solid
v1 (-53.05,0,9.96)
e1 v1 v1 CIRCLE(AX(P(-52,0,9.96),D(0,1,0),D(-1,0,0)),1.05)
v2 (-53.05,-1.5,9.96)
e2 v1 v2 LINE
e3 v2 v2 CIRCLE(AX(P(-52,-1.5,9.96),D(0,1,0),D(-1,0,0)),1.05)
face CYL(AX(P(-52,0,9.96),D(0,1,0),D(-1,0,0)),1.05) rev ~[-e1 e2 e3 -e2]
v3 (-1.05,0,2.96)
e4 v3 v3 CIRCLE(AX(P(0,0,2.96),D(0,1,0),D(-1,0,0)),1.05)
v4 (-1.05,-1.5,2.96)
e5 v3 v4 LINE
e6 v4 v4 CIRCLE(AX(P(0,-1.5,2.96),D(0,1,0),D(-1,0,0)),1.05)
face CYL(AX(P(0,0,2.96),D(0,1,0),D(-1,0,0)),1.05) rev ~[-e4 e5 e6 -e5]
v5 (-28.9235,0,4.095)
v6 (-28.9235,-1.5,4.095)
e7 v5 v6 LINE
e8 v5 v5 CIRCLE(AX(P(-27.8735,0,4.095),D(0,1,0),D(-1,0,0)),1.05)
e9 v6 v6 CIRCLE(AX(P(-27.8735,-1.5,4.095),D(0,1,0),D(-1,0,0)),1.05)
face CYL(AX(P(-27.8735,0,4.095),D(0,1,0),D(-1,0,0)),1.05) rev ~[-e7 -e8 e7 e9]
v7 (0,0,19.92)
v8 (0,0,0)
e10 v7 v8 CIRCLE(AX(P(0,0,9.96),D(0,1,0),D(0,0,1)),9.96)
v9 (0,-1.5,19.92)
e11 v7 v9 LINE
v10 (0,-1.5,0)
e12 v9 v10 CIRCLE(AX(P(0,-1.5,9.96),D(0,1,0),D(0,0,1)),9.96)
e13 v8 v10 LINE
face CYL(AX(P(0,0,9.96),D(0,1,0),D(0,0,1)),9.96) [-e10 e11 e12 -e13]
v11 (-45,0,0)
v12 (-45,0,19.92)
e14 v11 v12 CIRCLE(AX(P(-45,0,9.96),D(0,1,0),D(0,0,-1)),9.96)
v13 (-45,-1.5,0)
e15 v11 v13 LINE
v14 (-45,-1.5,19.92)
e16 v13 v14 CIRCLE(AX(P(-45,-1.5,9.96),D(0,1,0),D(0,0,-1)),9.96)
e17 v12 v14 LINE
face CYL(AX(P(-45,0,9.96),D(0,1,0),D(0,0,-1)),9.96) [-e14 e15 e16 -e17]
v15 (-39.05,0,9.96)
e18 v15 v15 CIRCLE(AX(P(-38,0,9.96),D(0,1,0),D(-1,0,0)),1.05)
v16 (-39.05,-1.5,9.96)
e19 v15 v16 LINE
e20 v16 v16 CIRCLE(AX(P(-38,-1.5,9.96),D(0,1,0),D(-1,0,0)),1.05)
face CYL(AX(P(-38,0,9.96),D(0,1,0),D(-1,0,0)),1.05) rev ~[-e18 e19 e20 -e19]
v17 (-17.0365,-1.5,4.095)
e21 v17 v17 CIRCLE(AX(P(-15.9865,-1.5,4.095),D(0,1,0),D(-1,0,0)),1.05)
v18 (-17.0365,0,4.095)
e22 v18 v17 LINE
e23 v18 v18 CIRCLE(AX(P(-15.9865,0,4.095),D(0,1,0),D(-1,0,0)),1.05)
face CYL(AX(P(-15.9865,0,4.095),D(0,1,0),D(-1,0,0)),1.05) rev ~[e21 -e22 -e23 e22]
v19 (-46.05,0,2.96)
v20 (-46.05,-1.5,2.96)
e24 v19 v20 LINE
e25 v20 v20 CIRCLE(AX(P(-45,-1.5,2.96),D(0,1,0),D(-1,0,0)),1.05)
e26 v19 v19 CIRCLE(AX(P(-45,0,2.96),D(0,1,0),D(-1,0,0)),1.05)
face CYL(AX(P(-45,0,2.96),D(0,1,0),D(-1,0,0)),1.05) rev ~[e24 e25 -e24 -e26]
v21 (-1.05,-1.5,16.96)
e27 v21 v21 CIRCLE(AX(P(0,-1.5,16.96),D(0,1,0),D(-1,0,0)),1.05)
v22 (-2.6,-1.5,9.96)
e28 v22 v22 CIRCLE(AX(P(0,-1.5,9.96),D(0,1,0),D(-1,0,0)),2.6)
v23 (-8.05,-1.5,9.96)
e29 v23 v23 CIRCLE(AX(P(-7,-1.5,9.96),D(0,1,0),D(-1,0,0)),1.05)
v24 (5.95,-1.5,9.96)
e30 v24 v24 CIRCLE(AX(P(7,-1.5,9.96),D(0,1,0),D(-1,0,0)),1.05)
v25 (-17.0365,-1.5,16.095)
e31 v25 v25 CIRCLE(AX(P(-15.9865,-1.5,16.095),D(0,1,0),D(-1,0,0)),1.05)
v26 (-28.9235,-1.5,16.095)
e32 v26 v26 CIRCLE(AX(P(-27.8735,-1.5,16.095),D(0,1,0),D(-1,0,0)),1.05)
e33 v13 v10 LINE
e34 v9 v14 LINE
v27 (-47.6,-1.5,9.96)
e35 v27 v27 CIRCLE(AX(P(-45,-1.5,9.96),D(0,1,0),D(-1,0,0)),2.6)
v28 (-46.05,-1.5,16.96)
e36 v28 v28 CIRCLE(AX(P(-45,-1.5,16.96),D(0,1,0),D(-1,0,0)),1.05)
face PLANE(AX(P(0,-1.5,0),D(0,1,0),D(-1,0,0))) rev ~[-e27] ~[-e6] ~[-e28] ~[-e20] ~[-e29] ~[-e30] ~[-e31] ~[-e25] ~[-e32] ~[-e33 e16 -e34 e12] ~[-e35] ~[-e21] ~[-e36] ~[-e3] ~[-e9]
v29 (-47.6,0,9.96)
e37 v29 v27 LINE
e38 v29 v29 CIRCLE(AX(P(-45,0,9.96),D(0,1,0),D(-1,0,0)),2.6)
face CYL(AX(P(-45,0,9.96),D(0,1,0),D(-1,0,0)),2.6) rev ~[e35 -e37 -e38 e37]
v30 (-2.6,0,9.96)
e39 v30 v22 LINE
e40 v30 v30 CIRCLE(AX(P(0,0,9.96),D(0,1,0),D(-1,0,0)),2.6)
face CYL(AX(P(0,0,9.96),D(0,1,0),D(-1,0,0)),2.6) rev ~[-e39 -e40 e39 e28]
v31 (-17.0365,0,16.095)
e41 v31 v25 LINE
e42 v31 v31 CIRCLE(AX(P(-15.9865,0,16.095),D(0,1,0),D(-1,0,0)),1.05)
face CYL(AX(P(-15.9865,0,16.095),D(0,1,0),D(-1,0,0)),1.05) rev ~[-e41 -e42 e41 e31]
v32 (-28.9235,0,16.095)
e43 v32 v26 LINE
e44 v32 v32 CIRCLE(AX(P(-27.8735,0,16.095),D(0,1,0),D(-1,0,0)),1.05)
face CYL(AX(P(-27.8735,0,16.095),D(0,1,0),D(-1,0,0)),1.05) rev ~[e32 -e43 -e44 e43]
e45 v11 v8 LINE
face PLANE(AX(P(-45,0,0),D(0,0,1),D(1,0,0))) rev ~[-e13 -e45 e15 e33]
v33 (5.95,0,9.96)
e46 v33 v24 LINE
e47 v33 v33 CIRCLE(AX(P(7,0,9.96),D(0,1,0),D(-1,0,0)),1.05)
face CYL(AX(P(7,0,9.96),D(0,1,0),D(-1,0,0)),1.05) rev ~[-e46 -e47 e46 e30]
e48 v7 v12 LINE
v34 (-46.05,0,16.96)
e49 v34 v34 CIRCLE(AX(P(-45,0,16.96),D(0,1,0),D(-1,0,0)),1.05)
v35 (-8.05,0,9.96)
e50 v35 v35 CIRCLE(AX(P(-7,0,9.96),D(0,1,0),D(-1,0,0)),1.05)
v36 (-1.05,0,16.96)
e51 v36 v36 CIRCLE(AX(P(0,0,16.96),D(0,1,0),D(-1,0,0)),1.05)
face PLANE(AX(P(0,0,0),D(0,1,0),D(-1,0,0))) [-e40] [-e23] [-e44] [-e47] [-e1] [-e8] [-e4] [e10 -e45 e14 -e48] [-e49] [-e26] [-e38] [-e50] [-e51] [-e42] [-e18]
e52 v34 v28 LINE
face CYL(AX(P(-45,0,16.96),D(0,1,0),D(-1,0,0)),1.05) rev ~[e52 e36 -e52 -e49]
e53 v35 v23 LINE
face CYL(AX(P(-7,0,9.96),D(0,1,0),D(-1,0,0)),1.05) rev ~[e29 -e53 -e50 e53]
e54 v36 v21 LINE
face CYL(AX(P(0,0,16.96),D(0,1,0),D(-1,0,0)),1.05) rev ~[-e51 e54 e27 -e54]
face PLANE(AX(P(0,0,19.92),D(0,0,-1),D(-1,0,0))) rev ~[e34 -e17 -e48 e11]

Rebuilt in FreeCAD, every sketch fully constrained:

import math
import FreeCAD as App
import Part
import Sketcher

V = App.Vector
Q = App.Units.Quantity

doc = App.newDocument("Part")
body = doc.addObject("PartDesign::Body", "Body")

sketch1 = doc.addObject("Sketcher::SketchObject", "Sketch")
body.addObject(sketch1)
sketch1.AttachmentSupport = (doc.XZ_Plane, [""])
sketch1.MapMode = "FlatFace"
sketch1.addGeometry([
    Part.LineSegment(V(0, 0, 0), V(-45, 0, 0)),
    Part.ArcOfCircle(Part.Circle(V(-45, 10, 0), V(0, 0, 1), 10), math.radians(90), math.radians(270)),
    Part.LineSegment(V(-45, 19.9, 0), V(0, 19.9, 0)),
    Part.ArcOfCircle(Part.Circle(V(0, 10, 0), V(0, 0, 1), 10), math.radians(-90), math.radians(90)),
    Part.Circle(V(0, 3, 0), V(0, 0, 1), 1.1),
    Part.Circle(V(-16, 4.1, 0), V(0, 0, 1), 1.1),
    Part.Circle(V(7, 10, 0), V(0, 0, 1), 1.1),
    Part.Circle(V(0, 10, 0), V(0, 0, 1), 2.6),
    Part.Circle(V(-7, 10, 0), V(0, 0, 1), 1.1),
    Part.Circle(V(-27.9, 4.1, 0), V(0, 0, 1), 1.1),
    Part.Circle(V(-45, 3, 0), V(0, 0, 1), 1.1),
    Part.Circle(V(-38, 10, 0), V(0, 0, 1), 1.1),
    Part.Circle(V(-45, 10, 0), V(0, 0, 1), 2.6),
    Part.Circle(V(-52, 10, 0), V(0, 0, 1), 1.1),
    Part.Circle(V(0, 17, 0), V(0, 0, 1), 1.1),
    Part.Circle(V(-16, 16.1, 0), V(0, 0, 1), 1.1),
    Part.Circle(V(-27.9, 16.1, 0), V(0, 0, 1), 1.1),
    Part.Circle(V(-45, 17, 0), V(0, 0, 1), 1.1),
], False)
sketch1.addConstraint([
    Sketcher.Constraint("Tangent", 0, 2, 1, 2),
    Sketcher.Constraint("Tangent", 1, 1, 2, 1),
    Sketcher.Constraint("Tangent", 2, 2, 3, 2),
    Sketcher.Constraint("Tangent", 3, 1, 0, 1),
    Sketcher.Constraint("Horizontal", 0),
    Sketcher.Constraint("Horizontal", 2),
    Sketcher.Constraint("Coincident", 3, 1, -1, 1),
    Sketcher.Constraint("Coincident", 7, 3, 3, 3),
    Sketcher.Constraint("Coincident", 12, 3, 1, 3),
    Sketcher.Constraint("Equal", 4, 5),
    Sketcher.Constraint("Equal", 5, 6),
    Sketcher.Constraint("Equal", 6, 8),
    Sketcher.Constraint("Equal", 8, 9),
    Sketcher.Constraint("Equal", 9, 10),
    Sketcher.Constraint("Equal", 10, 11),
    Sketcher.Constraint("Equal", 7, 12),
    Sketcher.Constraint("Equal", 11, 13),
    Sketcher.Constraint("Equal", 13, 14),
    Sketcher.Constraint("Equal", 14, 15),
    Sketcher.Constraint("Equal", 15, 16),
    Sketcher.Constraint("Equal", 16, 17),
    Sketcher.Constraint("Symmetric", 6, 3, 8, 3, -2),
    Sketcher.Constraint("PointOnObject", 4, 3, -2),
    Sketcher.Constraint("PointOnObject", 14, 3, -2),
    Sketcher.Constraint("Horizontal", 3, 3, 6, 3),
    Sketcher.Constraint("Horizontal", 5, 3, 9, 3),
    Sketcher.Constraint("Horizontal", 4, 3, 10, 3),
    Sketcher.Constraint("Horizontal", 8, 3, 11, 3),
    Sketcher.Constraint("Horizontal", 12, 3, 13, 3),
    Sketcher.Constraint("Horizontal", 15, 3, 16, 3),
    Sketcher.Constraint("Horizontal", 14, 3, 17, 3),
    Sketcher.Constraint("Vertical", 1, 3, 10, 3),
    Sketcher.Constraint("Vertical", 5, 3, 15, 3),
    Sketcher.Constraint("Vertical", 9, 3, 16, 3),
    Sketcher.Constraint("Vertical", 12, 3, 17, 3),
    Sketcher.Constraint("Diameter", 4, Q("2.1 mm")),
    Sketcher.Constraint("Diameter", 7, Q("5.2 mm")),
    Sketcher.Constraint("DistanceX", 0, 2, 0, 1, Q("45 mm")),
    Sketcher.Constraint("Radius", 1, Q("9.96 mm")),
    Sketcher.Constraint("DistanceX", -1, 1, 6, 3, Q("7 mm")),
    Sketcher.Constraint("DistanceX", 11, 3, -1, 1, Q("38 mm")),
    Sketcher.Constraint("DistanceX", 13, 3, -1, 1, Q("52 mm")),
    Sketcher.Constraint("DistanceY", 4, 3, 3, 3, Q("7 mm")),
    Sketcher.Constraint("DistanceY", 3, 3, 14, 3, Q("7 mm")),
    Sketcher.Constraint("DistanceY", 5, 3, 15, 3, Q("12 mm")),
    Sketcher.Constraint("DistanceY", -1, 1, 5, 3, Q("4.095 mm")),
    Sketcher.Constraint("DistanceX", 9, 3, 5, 3, Q("11.887 mm")),
    Sketcher.Constraint("DistanceX", 5, 3, -1, 1, Q("15.9865 mm")),
])
pad1 = doc.addObject("PartDesign::Pad", "Pad")
body.addObject(pad1)
pad1.Profile = sketch1
pad1.Length = 1.5

doc.recompute()
